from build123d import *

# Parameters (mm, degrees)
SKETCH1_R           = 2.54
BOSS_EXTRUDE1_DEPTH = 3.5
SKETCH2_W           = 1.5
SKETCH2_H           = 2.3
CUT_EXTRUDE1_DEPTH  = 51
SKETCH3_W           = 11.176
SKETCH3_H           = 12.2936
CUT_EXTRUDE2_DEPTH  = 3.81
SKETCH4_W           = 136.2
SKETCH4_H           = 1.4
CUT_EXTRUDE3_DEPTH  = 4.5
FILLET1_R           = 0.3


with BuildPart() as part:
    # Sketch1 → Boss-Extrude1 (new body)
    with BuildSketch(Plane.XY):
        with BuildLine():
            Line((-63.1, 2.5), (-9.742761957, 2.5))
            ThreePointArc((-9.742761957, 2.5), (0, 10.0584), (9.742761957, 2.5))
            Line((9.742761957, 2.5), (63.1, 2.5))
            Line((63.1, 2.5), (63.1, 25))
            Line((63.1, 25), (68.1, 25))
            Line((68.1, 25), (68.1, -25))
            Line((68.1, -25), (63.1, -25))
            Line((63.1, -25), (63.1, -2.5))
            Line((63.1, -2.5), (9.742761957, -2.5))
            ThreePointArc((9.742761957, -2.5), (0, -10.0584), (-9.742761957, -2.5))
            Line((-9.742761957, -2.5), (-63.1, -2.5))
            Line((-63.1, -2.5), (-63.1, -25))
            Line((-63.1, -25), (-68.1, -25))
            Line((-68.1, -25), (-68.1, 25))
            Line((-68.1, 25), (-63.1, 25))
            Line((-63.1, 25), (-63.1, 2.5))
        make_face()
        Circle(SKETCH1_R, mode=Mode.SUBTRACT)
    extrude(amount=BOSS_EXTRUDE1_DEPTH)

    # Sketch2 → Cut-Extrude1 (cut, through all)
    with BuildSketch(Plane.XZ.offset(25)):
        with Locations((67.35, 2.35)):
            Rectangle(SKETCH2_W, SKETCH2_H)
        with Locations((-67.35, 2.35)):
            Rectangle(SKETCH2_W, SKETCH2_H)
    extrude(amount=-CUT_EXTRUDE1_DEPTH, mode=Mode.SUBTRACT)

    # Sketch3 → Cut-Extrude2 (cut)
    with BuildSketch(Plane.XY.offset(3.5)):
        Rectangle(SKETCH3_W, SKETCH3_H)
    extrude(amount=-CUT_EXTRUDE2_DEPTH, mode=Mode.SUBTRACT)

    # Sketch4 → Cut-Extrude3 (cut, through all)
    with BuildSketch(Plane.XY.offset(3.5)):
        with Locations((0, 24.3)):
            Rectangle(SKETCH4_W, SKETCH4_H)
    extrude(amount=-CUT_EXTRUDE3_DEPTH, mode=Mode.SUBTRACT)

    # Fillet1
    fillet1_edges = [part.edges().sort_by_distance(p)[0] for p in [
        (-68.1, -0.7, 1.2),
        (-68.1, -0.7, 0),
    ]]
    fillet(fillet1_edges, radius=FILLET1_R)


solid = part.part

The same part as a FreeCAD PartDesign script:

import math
import FreeCAD as App
import Part
import Sketcher

V = App.Vector


def edges_at(feature, points):
    """Names of the edges that pass closest to the given points."""
    edges = feature.Shape.Edges
    near = lambda p: min(range(len(edges)), key=lambda i: edges[i].distToShape(Part.Vertex(*p))[0])
    return sorted({f"Edge{near(p) + 1}" for p in points})

doc = App.newDocument("Part")
params = doc.addObject("Spreadsheet::Sheet", "Params")
for row, (alias, value) in enumerate([
    ("sketch1_diameter", "5.08 mm"),
    ("sketch1_width", "5 mm"),
    ("sketch1_height", "50 mm"),
    ("sketch1_height2", "22.5 mm"),
    ("pad1_length", "3.5 mm"),
    ("sketch2_width", "1.5 mm"),
    ("sketch2_height", "2.3 mm"),
    ("pocket2_length", "3.81 mm"),
    ("sketch4_width", "136.2 mm"),
    ("sketch4_height", "1.4 mm"),
    ("fillet_radius", "0.3 mm"),
], start=1):
    params.set(f"A{row}", alias)
    params.set(f"B{row}", "=" + value)
    params.setAlias(f"B{row}", alias)

body = doc.addObject("PartDesign::Body", "Body")

# Sketch on XY plane
sketch1 = body.newObject("Sketcher::SketchObject", "Sketch")
sketch1.AttachmentSupport = (doc.getObject("XY_Plane"), [""])
sketch1.MapMode = "FlatFace"
sketch1.addGeometry(Part.LineSegment(V(-9.7, 2.5, 0), V(-63.1, 2.5, 0)), False)
sketch1.addGeometry(Part.LineSegment(V(-63.1, 2.5, 0), V(-63.1, 25, 0)), False)
sketch1.addGeometry(Part.LineSegment(V(-63.1, 25, 0), V(-68.1, 25, 0)), False)
sketch1.addGeometry(Part.LineSegment(V(-68.1, 25, 0), V(-68.1, -25, 0)), False)
sketch1.addGeometry(Part.LineSegment(V(-68.1, -25, 0), V(-63.1, -25, 0)), False)
sketch1.addGeometry(Part.LineSegment(V(-63.1, -25, 0), V(-63.1, -2.5, 0)), False)
sketch1.addGeometry(Part.LineSegment(V(-63.1, -2.5, 0), V(-9.7, -2.5, 0)), False)
sketch1.addGeometry(Part.ArcOfCircle(Part.Circle(V(0, 0, 0), V(0, 0, 1), 10.1), math.radians(-166), math.radians(-14)), False)
sketch1.addGeometry(Part.LineSegment(V(9.7, -2.5, 0), V(63.1, -2.5, 0)), False)
sketch1.addGeometry(Part.LineSegment(V(63.1, -2.5, 0), V(63.1, -25, 0)), False)
sketch1.addGeometry(Part.LineSegment(V(63.1, -25, 0), V(68.1, -25, 0)), False)
sketch1.addGeometry(Part.LineSegment(V(68.1, -25, 0), V(68.1, 25, 0)), False)
sketch1.addGeometry(Part.LineSegment(V(68.1, 25, 0), V(63.1, 25, 0)), False)
sketch1.addGeometry(Part.LineSegment(V(63.1, 25, 0), V(63.1, 2.5, 0)), False)
sketch1.addGeometry(Part.LineSegment(V(63.1, 2.5, 0), V(9.7, 2.5, 0)), False)
sketch1.addGeometry(Part.ArcOfCircle(Part.Circle(V(0, 0, 0), V(0, 0, 1), 10.1), math.radians(14), math.radians(166)), False)
sketch1.addGeometry(Part.Circle(V(0, 0, 0), V(0, 0, 1), 2.5), False)
sketch1.addConstraint(Sketcher.Constraint("Coincident", 0, 2, 1, 1))
sketch1.addConstraint(Sketcher.Constraint("Coincident", 1, 2, 2, 1))
sketch1.addConstraint(Sketcher.Constraint("Coincident", 2, 2, 3, 1))
sketch1.addConstraint(Sketcher.Constraint("Coincident", 3, 2, 4, 1))
sketch1.addConstraint(Sketcher.Constraint("Coincident", 4, 2, 5, 1))
sketch1.addConstraint(Sketcher.Constraint("Coincident", 5, 2, 6, 1))
sketch1.addConstraint(Sketcher.Constraint("Coincident", 6, 2, 7, 1))
sketch1.addConstraint(Sketcher.Constraint("Coincident", 7, 2, 8, 1))
sketch1.addConstraint(Sketcher.Constraint("Coincident", 8, 2, 9, 1))
sketch1.addConstraint(Sketcher.Constraint("Coincident", 9, 2, 10, 1))
sketch1.addConstraint(Sketcher.Constraint("Coincident", 10, 2, 11, 1))
sketch1.addConstraint(Sketcher.Constraint("Coincident", 11, 2, 12, 1))
sketch1.addConstraint(Sketcher.Constraint("Coincident", 12, 2, 13, 1))
sketch1.addConstraint(Sketcher.Constraint("Coincident", 13, 2, 14, 1))
sketch1.addConstraint(Sketcher.Constraint("Coincident", 14, 2, 15, 1))
sketch1.addConstraint(Sketcher.Constraint("Coincident", 15, 2, 0, 1))
sketch1.addConstraint(Sketcher.Constraint("Horizontal", 0))
sketch1.addConstraint(Sketcher.Constraint("Vertical", 1))
sketch1.addConstraint(Sketcher.Constraint("Horizontal", 2))
sketch1.addConstraint(Sketcher.Constraint("Vertical", 3))
sketch1.addConstraint(Sketcher.Constraint("Horizontal", 4))
sketch1.addConstraint(Sketcher.Constraint("Vertical", 5))
sketch1.addConstraint(Sketcher.Constraint("Horizontal", 6))
sketch1.addConstraint(Sketcher.Constraint("Horizontal", 8))
sketch1.addConstraint(Sketcher.Constraint("Vertical", 9))
sketch1.addConstraint(Sketcher.Constraint("Horizontal", 10))
sketch1.addConstraint(Sketcher.Constraint("Vertical", 11))
sketch1.addConstraint(Sketcher.Constraint("Horizontal", 12))
sketch1.addConstraint(Sketcher.Constraint("Vertical", 13))
sketch1.addConstraint(Sketcher.Constraint("Horizontal", 14))
sketch1.addConstraint(Sketcher.Constraint("Coincident", 7, 3, -1, 1))
sketch1.addConstraint(Sketcher.Constraint("Coincident", 15, 3, -1, 1))
sketch1.addConstraint(Sketcher.Constraint("Coincident", 16, 3, -1, 1))
sketch1.addConstraint(Sketcher.Constraint("Equal", 7, 15))
sketch1.addConstraint(Sketcher.Constraint("Symmetric", 0, 2, 8, 2, -1, 1))
sketch1.addConstraint(Sketcher.Constraint("Symmetric", 2, 2, 10, 2, -1, 1))
sketch1.addConstraint(Sketcher.Constraint("Symmetric", 4, 2, 12, 2, -1, 1))
sketch1.addConstraint(Sketcher.Constraint("Symmetric", 5, 2, 8, 2, -2))
sketch1.addConstraint(Sketcher.Constraint("Horizontal", 4, 2, 9, 2))
sketch1.addConstraint(Sketcher.Constraint("Horizontal", 0, 2, 13, 2))
sketch1.addConstraint(Sketcher.Constraint("Diameter", 16, 5.08))
sketch1.addConstraint(Sketcher.Constraint("DistanceX", 2, 2, 2, 1, 5.0))
sketch1.addConstraint(Sketcher.Constraint("DistanceY", 3, 2, 3, 1, 50.0))
sketch1.addConstraint(Sketcher.Constraint("DistanceY", 1, 1, 1, 2, 22.5))
sketch1.addConstraint(Sketcher.Constraint("DistanceX", 0, 2, -1, 1, 63.1))
sketch1.addConstraint(Sketcher.Constraint("Radius", 7, 10.0584))
sketch1.setExpression("Constraints[40]", "Params.sketch1_diameter")
sketch1.setExpression("Constraints[41]", "Params.sketch1_width")
sketch1.setExpression("Constraints[42]", "Params.sketch1_height")
sketch1.setExpression("Constraints[43]", "Params.sketch1_height2")
pad1 = body.newObject("PartDesign::Pad", "Pad")
pad1.Profile = sketch1
pad1.setExpression("Length", "Params.pad1_length")

# Sketch on XZ plane
sketch2 = body.newObject("Sketcher::SketchObject", "Sketch001")
sketch2.AttachmentSupport = (doc.getObject("XZ_Plane"), [""])
sketch2.MapMode = "FlatFace"
sketch2.AttachmentOffset = App.Placement(V(0, 0, 25), App.Rotation())
sketch2.addGeometry(Part.LineSegment(V(66.6, 3.5, 0), V(66.6, 1.2, 0)), False)
sketch2.addGeometry(Part.LineSegment(V(66.6, 1.2, 0), V(68.1, 1.2, 0)), False)
sketch2.addGeometry(Part.LineSegment(V(68.1, 1.2, 0), V(68.1, 3.5, 0)), False)
sketch2.addGeometry(Part.LineSegment(V(68.1, 3.5, 0), V(66.6, 3.5, 0)), False)
sketch2.addGeometry(Part.LineSegment(V(-68.1, 3.5, 0), V(-68.1, 1.2, 0)), False)
sketch2.addGeometry(Part.LineSegment(V(-68.1, 1.2, 0), V(-66.6, 1.2, 0)), False)
sketch2.addGeometry(Part.LineSegment(V(-66.6, 1.2, 0), V(-66.6, 3.5, 0)), False)
sketch2.addGeometry(Part.LineSegment(V(-66.6, 3.5, 0), V(-68.1, 3.5, 0)), False)
sketch2.addConstraint(Sketcher.Constraint("Coincident", 0, 2, 1, 1))
sketch2.addConstraint(Sketcher.Constraint("Coincident", 1, 2, 2, 1))
sketch2.addConstraint(Sketcher.Constraint("Coincident", 2, 2, 3, 1))
sketch2.addConstraint(Sketcher.Constraint("Coincident", 3, 2, 0, 1))
sketch2.addConstraint(Sketcher.Constraint("Coincident", 4, 2, 5, 1))
sketch2.addConstraint(Sketcher.Constraint("Coincident", 5, 2, 6, 1))
sketch2.addConstraint(Sketcher.Constraint("Coincident", 6, 2, 7, 1))
sketch2.addConstraint(Sketcher.Constraint("Coincident", 7, 2, 4, 1))
sketch2.addConstraint(Sketcher.Constraint("Vertical", 0))
sketch2.addConstraint(Sketcher.Constraint("Horizontal", 1))
sketch2.addConstraint(Sketcher.Constraint("Vertical", 2))
sketch2.addConstraint(Sketcher.Constraint("Horizontal", 3))
sketch2.addConstraint(Sketcher.Constraint("Vertical", 4))
sketch2.addConstraint(Sketcher.Constraint("Horizontal", 5))
sketch2.addConstraint(Sketcher.Constraint("Vertical", 6))
sketch2.addConstraint(Sketcher.Constraint("Horizontal", 7))
sketch2.addConstraint(Sketcher.Constraint("Symmetric", 1, 2, 4, 2, -2))
sketch2.addConstraint(Sketcher.Constraint("Symmetric", 3, 2, 6, 2, -2))
sketch2.addConstraint(Sketcher.Constraint("DistanceX", 1, 1, 1, 2, 1.5))
sketch2.addConstraint(Sketcher.Constraint("DistanceY", 0, 2, 0, 1, 2.3))
sketch2.addConstraint(Sketcher.Constraint("DistanceX", -1, 1, 0, 2, 66.6))
sketch2.addConstraint(Sketcher.Constraint("DistanceY", -1, 1, 0, 2, 1.2))
sketch2.setExpression("Constraints[18]", "Params.sketch2_width")
sketch2.setExpression("Constraints[19]", "Params.sketch2_height")
pocket1 = body.newObject("PartDesign::Pocket", "Pocket")
pocket1.Profile = sketch2
pocket1.Type = "ThroughAll"

# Sketch on XY plane
sketch3 = body.newObject("Sketcher::SketchObject", "Sketch002")
sketch3.AttachmentSupport = (doc.getObject("XY_Plane"), [""])
sketch3.MapMode = "FlatFace"
sketch3.AttachmentOffset = App.Placement(V(0, 0, 3.5), App.Rotation())
sketch3.addGeometry(Part.LineSegment(V(-6, 6, 0), V(-6, -6, 0)), False)
sketch3.addGeometry(Part.LineSegment(V(-6, -6, 0), V(6, -6, 0)), False)
sketch3.addGeometry(Part.LineSegment(V(6, -6, 0), V(6, 6, 0)), False)
sketch3.addGeometry(Part.LineSegment(V(6, 6, 0), V(-6, 6, 0)), False)
sketch3.addConstraint(Sketcher.Constraint("Coincident", 0, 2, 1, 1))
sketch3.addConstraint(Sketcher.Constraint("Coincident", 1, 2, 2, 1))
sketch3.addConstraint(Sketcher.Constraint("Coincident", 2, 2, 3, 1))
sketch3.addConstraint(Sketcher.Constraint("Coincident", 3, 2, 0, 1))
sketch3.addConstraint(Sketcher.Constraint("Vertical", 0))
sketch3.addConstraint(Sketcher.Constraint("Horizontal", 1))
sketch3.addConstraint(Sketcher.Constraint("Vertical", 2))
sketch3.addConstraint(Sketcher.Constraint("Horizontal", 3))
sketch3.addConstraint(Sketcher.Constraint("Symmetric", 0, 2, 2, 2, -1, 1))
sketch3.addConstraint(Sketcher.Constraint("DistanceX", 1, 1, 1, 2, 11.176))
sketch3.addConstraint(Sketcher.Constraint("DistanceY", 0, 2, 0, 1, 12.2936))
pocket2 = body.newObject("PartDesign::Pocket", "Pocket001")
pocket2.Profile = sketch3
pocket2.setExpression("Length", "Params.pocket2_length")

# Sketch on XY plane
sketch4 = body.newObject("Sketcher::SketchObject", "Sketch003")
sketch4.AttachmentSupport = (doc.getObject("XY_Plane"), [""])
sketch4.MapMode = "FlatFace"
sketch4.AttachmentOffset = App.Placement(V(0, 0, 3.5), App.Rotation())
sketch4.addGeometry(Part.LineSegment(V(-68.1, 25, 0), V(-68.1, 23.6, 0)), False)
sketch4.addGeometry(Part.LineSegment(V(-68.1, 23.6, 0), V(68.1, 23.6, 0)), False)
sketch4.addGeometry(Part.LineSegment(V(68.1, 23.6, 0), V(68.1, 25, 0)), False)
sketch4.addGeometry(Part.LineSegment(V(68.1, 25, 0), V(-68.1, 25, 0)), False)
sketch4.addConstraint(Sketcher.Constraint("Coincident", 0, 2, 1, 1))
sketch4.addConstraint(Sketcher.Constraint("Coincident", 1, 2, 2, 1))
sketch4.addConstraint(Sketcher.Constraint("Coincident", 2, 2, 3, 1))
sketch4.addConstraint(Sketcher.Constraint("Coincident", 3, 2, 0, 1))
sketch4.addConstraint(Sketcher.Constraint("Vertical", 0))
sketch4.addConstraint(Sketcher.Constraint("Horizontal", 1))
sketch4.addConstraint(Sketcher.Constraint("Vertical", 2))
sketch4.addConstraint(Sketcher.Constraint("Horizontal", 3))
sketch4.addConstraint(Sketcher.Constraint("DistanceX", 1, 1, 1, 2, 136.2))
sketch4.addConstraint(Sketcher.Constraint("DistanceY", 0, 2, 0, 1, 1.4))
sketch4.addConstraint(Sketcher.Constraint("DistanceY", -1, 1, 2, 2, 25.0))
sketch4.addConstraint(Sketcher.Constraint("DistanceX", 0, 2, -1, 1, 68.1))
sketch4.setExpression("Constraints[8]", "Params.sketch4_width")
sketch4.setExpression("Constraints[9]", "Params.sketch4_height")
pocket3 = body.newObject("PartDesign::Pocket", "Pocket002")
pocket3.Profile = sketch4
pocket3.Type = "ThroughAll"
doc.recompute()

fillet = body.newObject("PartDesign::Fillet", "Fillet")
fillet.Base = (pocket3, edges_at(pocket3, [(-68.1, -0.7, 1.2), (-68.1, -0.7, 0)]))
fillet.setExpression("Radius", "Params.fillet_radius")

doc.recompute()
